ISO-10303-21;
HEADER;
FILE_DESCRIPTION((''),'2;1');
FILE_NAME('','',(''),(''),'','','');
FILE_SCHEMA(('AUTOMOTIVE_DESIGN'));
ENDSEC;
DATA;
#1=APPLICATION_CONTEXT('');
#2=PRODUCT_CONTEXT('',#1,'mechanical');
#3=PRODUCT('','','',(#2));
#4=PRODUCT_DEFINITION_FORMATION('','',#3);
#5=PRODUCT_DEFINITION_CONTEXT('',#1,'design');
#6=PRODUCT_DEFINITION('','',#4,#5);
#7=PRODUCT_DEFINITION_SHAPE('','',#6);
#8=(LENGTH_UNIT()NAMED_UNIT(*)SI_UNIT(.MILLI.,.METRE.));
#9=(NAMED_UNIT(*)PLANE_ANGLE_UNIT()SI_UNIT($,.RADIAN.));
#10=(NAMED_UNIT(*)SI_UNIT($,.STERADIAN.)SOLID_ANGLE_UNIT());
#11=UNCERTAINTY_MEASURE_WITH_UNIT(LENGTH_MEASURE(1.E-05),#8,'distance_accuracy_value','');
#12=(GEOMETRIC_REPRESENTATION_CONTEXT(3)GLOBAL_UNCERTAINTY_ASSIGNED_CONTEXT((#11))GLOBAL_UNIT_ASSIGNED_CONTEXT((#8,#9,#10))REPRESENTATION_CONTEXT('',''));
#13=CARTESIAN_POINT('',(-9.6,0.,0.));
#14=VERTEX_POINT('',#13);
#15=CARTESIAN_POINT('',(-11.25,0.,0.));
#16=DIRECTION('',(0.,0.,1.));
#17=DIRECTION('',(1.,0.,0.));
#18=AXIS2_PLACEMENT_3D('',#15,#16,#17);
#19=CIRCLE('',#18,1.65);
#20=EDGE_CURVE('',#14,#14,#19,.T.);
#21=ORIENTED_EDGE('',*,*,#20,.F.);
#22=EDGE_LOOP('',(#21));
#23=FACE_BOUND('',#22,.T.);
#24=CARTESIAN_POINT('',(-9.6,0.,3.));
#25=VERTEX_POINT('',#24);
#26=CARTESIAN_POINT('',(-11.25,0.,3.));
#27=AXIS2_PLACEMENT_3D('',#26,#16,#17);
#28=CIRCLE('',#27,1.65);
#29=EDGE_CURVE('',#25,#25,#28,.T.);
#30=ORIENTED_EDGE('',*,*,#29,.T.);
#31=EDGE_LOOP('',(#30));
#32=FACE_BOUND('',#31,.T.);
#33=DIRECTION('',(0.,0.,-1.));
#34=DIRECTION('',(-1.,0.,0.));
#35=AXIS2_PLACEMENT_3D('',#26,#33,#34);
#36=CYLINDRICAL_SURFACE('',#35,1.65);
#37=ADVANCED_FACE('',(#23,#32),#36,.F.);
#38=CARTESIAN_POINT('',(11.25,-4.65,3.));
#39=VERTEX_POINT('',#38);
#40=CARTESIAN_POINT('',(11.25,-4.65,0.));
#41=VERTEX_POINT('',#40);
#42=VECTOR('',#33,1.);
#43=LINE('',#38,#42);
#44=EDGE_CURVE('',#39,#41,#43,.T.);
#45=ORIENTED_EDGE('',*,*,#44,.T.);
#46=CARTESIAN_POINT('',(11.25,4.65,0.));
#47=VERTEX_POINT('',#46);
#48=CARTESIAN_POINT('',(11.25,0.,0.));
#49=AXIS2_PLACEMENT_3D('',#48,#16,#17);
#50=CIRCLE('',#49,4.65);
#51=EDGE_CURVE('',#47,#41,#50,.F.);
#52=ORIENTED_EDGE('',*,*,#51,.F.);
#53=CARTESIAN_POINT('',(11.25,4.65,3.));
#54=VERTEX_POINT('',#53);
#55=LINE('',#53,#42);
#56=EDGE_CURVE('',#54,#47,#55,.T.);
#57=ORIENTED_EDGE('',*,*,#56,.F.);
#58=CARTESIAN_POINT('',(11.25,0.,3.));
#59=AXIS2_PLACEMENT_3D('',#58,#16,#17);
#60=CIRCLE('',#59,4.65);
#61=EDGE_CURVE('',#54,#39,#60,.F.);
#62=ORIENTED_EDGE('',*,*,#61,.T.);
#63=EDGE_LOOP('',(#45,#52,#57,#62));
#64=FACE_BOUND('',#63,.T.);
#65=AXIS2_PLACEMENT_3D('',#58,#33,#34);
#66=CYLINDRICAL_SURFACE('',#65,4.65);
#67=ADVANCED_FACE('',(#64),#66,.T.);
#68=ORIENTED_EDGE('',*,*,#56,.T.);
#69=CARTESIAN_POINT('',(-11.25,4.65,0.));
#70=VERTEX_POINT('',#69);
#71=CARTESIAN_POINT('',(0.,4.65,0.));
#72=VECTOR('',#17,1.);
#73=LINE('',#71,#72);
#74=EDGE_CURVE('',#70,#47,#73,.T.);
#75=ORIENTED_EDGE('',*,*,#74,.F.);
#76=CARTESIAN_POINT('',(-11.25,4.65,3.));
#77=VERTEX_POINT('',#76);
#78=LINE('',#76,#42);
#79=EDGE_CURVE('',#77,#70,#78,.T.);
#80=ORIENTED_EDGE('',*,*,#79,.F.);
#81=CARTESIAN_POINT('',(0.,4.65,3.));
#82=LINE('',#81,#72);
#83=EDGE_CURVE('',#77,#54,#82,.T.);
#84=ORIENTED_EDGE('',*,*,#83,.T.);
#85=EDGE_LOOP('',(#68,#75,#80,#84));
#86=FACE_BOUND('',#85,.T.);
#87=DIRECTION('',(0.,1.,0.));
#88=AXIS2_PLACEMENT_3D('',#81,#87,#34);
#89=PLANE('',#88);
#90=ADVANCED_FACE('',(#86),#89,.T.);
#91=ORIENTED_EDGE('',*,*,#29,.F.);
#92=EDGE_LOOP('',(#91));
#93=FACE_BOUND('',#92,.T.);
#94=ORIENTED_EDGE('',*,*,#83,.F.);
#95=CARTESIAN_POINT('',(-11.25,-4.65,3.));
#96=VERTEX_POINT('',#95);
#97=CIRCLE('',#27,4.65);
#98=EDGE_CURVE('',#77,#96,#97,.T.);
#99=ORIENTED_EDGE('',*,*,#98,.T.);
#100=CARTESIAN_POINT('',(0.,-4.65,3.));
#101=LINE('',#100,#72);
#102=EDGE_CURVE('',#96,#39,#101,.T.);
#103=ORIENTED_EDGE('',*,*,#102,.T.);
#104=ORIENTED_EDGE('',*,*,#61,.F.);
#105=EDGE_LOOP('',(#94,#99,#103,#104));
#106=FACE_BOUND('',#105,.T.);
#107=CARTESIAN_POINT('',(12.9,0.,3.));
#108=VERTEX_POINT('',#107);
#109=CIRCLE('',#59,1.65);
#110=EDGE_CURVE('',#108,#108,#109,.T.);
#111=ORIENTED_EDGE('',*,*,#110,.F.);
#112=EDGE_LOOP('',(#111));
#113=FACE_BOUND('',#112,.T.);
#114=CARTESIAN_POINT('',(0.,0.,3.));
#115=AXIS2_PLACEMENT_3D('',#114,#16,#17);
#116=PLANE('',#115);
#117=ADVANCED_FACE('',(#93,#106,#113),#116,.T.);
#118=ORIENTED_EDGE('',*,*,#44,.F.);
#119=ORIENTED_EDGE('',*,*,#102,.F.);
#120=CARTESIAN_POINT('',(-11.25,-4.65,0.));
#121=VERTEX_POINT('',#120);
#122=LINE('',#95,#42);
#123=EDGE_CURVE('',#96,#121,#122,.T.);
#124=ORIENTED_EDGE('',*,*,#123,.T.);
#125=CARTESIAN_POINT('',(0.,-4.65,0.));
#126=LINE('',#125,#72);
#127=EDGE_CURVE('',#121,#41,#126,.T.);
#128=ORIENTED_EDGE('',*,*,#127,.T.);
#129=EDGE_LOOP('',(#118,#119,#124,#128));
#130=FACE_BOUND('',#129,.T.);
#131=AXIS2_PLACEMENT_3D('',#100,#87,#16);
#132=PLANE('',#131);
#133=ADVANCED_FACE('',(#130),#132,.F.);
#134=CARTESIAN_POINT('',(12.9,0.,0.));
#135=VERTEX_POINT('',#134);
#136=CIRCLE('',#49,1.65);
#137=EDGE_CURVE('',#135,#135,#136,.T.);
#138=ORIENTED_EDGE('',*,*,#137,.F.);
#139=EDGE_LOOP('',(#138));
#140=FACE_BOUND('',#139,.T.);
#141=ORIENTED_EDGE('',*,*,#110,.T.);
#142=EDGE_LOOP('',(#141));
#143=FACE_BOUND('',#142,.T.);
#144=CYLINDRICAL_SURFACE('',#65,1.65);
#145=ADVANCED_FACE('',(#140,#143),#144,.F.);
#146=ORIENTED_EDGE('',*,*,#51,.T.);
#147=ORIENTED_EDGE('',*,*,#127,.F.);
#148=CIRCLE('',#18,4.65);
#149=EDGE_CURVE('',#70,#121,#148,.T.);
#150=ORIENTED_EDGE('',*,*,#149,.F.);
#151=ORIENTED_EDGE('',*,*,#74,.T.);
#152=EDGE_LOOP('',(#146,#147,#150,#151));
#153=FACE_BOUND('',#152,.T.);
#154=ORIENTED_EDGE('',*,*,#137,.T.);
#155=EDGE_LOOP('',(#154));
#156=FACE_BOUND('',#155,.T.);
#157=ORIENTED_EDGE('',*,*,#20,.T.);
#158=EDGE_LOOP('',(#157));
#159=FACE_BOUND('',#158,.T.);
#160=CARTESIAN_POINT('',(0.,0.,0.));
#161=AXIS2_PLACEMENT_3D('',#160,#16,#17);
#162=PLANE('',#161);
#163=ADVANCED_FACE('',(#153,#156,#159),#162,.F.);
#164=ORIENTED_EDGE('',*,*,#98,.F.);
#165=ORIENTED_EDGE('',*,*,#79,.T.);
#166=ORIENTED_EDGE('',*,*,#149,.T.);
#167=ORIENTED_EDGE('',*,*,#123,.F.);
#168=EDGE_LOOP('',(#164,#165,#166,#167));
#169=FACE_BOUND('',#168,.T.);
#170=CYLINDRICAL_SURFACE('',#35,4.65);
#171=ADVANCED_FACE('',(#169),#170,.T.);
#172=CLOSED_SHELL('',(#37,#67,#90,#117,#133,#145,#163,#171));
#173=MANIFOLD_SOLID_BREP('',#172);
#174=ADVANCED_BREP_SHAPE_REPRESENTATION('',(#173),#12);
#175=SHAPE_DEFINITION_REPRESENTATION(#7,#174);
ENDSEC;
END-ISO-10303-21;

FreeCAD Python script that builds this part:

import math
import FreeCAD as App
import Part
import Sketcher

doc = App.newDocument("Part")
body = doc.addObject("PartDesign::Body", "Body")

sketch1 = body.newObject("Sketcher::SketchObject", "Sketch")
sketch1.AttachmentSupport = (doc.getObject("XY_Plane"), [""])
sketch1.MapMode = "FlatFace"
sketch1.addGeometry(Part.ArcOfCircle(Part.Circle(App.Vector(11.3, 0, 0), App.Vector(0, 0, 1), 4.6), math.radians(-90), math.radians(0)), False)
sketch1.addGeometry(Part.ArcOfCircle(Part.Circle(App.Vector(11.3, 0, 0), App.Vector(0, 0, 1), 4.6), math.radians(0), math.radians(90)), False)
sketch1.addGeometry(Part.LineSegment(App.Vector(11.2, 4.7, 0), App.Vector(-11.2, 4.7, 0)), False)
sketch1.addGeometry(Part.ArcOfCircle(Part.Circle(App.Vector(-11.2, 0, 0), App.Vector(0, 0, 1), 4.7), math.radians(90), math.radians(270)), False)
sketch1.addGeometry(Part.LineSegment(App.Vector(-11.2, -4.7, 0), App.Vector(11.2, -4.7, 0)), False)
sketch1.addGeometry(Part.ArcOfCircle(Part.Circle(App.Vector(11.2, 0, 0), App.Vector(0, 0, 1), 1.6), math.radians(90), math.radians(270)), False)
sketch1.addGeometry(Part.ArcOfCircle(Part.Circle(App.Vector(11.2, 0, 0), App.Vector(0, 0, 1), 1.6), math.radians(0), math.radians(90)), False)
sketch1.addGeometry(Part.ArcOfCircle(Part.Circle(App.Vector(11.2, 0, 0), App.Vector(0, 0, 1), 1.6), math.radians(-90), math.radians(0)), False)
sketch1.addGeometry(Part.ArcOfCircle(Part.Circle(App.Vector(-11.2, 0, 0), App.Vector(0, 0, 1), 1.6), math.radians(0), math.radians(90)), False)
sketch1.addGeometry(Part.ArcOfCircle(Part.Circle(App.Vector(-11.2, 0, 0), App.Vector(0, 0, 1), 1.6), math.radians(-90), math.radians(0)), False)
sketch1.addGeometry(Part.ArcOfCircle(Part.Circle(App.Vector(-11.2, 0, 0), App.Vector(0, 0, 1), 1.6), math.radians(90), math.radians(270)), False)
sketch1.addConstraint(Sketcher.Constraint("Tangent", 0, 2, 1, 1))
sketch1.addConstraint(Sketcher.Constraint("Tangent", 1, 2, 2, 1))
sketch1.addConstraint(Sketcher.Constraint("Tangent", 2, 2, 3, 1))
sketch1.addConstraint(Sketcher.Constraint("Tangent", 3, 2, 4, 1))
sketch1.addConstraint(Sketcher.Constraint("Tangent", 4, 2, 0, 1))
sketch1.addConstraint(Sketcher.Constraint("Tangent", 5, 1, 6, 2))
sketch1.addConstraint(Sketcher.Constraint("Tangent", 6, 1, 7, 2))
sketch1.addConstraint(Sketcher.Constraint("Tangent", 7, 1, 5, 2))
sketch1.addConstraint(Sketcher.Constraint("Tangent", 8, 1, 9, 2))
sketch1.addConstraint(Sketcher.Constraint("Tangent", 9, 1, 10, 2))
sketch1.addConstraint(Sketcher.Constraint("Tangent", 10, 1, 8, 2))
sketch1.addConstraint(Sketcher.Constraint("Horizontal", 2))
sketch1.addConstraint(Sketcher.Constraint("Horizontal", 4))
sketch1.addConstraint(Sketcher.Constraint("Coincident", 5, 3, 0, 3))
sketch1.addConstraint(Sketcher.Constraint("Coincident", 8, 3, 3, 3))
sketch1.addConstraint(Sketcher.Constraint("Equal", 0, 1))
sketch1.addConstraint(Sketcher.Constraint("Equal", 7, 8))
sketch1.addConstraint(Sketcher.Constraint("Symmetric", 0, 3, 3, 3, -1, 1))
sketch1.addConstraint(Sketcher.Constraint("PointOnObject", 0, 2, -1))
sketch1.addConstraint(Sketcher.Constraint("PointOnObject", 6, 1, -1))
sketch1.addConstraint(Sketcher.Constraint("PointOnObject", 8, 1, -1))
sketch1.addConstraint(Sketcher.Constraint("Vertical", 4, 2, 5, 1))
sketch1.addConstraint(Sketcher.Constraint("Vertical", 5, 1, 7, 1))
sketch1.addConstraint(Sketcher.Constraint("Vertical", 3, 2, 9, 1))
sketch1.addConstraint(Sketcher.Constraint("Vertical", 9, 1, 10, 1))
sketch1.addConstraint(Sketcher.Constraint("Radius", 0, 4.65))
sketch1.addConstraint(Sketcher.Constraint("Radius", 5, 1.65))
sketch1.addConstraint(Sketcher.Constraint("DistanceX", 2, 2, 2, 1, 22.5))
pad1 = body.newObject("PartDesign::Pad", "Pad")
pad1.Profile = sketch1
pad1.Length = 3

doc.recompute()
